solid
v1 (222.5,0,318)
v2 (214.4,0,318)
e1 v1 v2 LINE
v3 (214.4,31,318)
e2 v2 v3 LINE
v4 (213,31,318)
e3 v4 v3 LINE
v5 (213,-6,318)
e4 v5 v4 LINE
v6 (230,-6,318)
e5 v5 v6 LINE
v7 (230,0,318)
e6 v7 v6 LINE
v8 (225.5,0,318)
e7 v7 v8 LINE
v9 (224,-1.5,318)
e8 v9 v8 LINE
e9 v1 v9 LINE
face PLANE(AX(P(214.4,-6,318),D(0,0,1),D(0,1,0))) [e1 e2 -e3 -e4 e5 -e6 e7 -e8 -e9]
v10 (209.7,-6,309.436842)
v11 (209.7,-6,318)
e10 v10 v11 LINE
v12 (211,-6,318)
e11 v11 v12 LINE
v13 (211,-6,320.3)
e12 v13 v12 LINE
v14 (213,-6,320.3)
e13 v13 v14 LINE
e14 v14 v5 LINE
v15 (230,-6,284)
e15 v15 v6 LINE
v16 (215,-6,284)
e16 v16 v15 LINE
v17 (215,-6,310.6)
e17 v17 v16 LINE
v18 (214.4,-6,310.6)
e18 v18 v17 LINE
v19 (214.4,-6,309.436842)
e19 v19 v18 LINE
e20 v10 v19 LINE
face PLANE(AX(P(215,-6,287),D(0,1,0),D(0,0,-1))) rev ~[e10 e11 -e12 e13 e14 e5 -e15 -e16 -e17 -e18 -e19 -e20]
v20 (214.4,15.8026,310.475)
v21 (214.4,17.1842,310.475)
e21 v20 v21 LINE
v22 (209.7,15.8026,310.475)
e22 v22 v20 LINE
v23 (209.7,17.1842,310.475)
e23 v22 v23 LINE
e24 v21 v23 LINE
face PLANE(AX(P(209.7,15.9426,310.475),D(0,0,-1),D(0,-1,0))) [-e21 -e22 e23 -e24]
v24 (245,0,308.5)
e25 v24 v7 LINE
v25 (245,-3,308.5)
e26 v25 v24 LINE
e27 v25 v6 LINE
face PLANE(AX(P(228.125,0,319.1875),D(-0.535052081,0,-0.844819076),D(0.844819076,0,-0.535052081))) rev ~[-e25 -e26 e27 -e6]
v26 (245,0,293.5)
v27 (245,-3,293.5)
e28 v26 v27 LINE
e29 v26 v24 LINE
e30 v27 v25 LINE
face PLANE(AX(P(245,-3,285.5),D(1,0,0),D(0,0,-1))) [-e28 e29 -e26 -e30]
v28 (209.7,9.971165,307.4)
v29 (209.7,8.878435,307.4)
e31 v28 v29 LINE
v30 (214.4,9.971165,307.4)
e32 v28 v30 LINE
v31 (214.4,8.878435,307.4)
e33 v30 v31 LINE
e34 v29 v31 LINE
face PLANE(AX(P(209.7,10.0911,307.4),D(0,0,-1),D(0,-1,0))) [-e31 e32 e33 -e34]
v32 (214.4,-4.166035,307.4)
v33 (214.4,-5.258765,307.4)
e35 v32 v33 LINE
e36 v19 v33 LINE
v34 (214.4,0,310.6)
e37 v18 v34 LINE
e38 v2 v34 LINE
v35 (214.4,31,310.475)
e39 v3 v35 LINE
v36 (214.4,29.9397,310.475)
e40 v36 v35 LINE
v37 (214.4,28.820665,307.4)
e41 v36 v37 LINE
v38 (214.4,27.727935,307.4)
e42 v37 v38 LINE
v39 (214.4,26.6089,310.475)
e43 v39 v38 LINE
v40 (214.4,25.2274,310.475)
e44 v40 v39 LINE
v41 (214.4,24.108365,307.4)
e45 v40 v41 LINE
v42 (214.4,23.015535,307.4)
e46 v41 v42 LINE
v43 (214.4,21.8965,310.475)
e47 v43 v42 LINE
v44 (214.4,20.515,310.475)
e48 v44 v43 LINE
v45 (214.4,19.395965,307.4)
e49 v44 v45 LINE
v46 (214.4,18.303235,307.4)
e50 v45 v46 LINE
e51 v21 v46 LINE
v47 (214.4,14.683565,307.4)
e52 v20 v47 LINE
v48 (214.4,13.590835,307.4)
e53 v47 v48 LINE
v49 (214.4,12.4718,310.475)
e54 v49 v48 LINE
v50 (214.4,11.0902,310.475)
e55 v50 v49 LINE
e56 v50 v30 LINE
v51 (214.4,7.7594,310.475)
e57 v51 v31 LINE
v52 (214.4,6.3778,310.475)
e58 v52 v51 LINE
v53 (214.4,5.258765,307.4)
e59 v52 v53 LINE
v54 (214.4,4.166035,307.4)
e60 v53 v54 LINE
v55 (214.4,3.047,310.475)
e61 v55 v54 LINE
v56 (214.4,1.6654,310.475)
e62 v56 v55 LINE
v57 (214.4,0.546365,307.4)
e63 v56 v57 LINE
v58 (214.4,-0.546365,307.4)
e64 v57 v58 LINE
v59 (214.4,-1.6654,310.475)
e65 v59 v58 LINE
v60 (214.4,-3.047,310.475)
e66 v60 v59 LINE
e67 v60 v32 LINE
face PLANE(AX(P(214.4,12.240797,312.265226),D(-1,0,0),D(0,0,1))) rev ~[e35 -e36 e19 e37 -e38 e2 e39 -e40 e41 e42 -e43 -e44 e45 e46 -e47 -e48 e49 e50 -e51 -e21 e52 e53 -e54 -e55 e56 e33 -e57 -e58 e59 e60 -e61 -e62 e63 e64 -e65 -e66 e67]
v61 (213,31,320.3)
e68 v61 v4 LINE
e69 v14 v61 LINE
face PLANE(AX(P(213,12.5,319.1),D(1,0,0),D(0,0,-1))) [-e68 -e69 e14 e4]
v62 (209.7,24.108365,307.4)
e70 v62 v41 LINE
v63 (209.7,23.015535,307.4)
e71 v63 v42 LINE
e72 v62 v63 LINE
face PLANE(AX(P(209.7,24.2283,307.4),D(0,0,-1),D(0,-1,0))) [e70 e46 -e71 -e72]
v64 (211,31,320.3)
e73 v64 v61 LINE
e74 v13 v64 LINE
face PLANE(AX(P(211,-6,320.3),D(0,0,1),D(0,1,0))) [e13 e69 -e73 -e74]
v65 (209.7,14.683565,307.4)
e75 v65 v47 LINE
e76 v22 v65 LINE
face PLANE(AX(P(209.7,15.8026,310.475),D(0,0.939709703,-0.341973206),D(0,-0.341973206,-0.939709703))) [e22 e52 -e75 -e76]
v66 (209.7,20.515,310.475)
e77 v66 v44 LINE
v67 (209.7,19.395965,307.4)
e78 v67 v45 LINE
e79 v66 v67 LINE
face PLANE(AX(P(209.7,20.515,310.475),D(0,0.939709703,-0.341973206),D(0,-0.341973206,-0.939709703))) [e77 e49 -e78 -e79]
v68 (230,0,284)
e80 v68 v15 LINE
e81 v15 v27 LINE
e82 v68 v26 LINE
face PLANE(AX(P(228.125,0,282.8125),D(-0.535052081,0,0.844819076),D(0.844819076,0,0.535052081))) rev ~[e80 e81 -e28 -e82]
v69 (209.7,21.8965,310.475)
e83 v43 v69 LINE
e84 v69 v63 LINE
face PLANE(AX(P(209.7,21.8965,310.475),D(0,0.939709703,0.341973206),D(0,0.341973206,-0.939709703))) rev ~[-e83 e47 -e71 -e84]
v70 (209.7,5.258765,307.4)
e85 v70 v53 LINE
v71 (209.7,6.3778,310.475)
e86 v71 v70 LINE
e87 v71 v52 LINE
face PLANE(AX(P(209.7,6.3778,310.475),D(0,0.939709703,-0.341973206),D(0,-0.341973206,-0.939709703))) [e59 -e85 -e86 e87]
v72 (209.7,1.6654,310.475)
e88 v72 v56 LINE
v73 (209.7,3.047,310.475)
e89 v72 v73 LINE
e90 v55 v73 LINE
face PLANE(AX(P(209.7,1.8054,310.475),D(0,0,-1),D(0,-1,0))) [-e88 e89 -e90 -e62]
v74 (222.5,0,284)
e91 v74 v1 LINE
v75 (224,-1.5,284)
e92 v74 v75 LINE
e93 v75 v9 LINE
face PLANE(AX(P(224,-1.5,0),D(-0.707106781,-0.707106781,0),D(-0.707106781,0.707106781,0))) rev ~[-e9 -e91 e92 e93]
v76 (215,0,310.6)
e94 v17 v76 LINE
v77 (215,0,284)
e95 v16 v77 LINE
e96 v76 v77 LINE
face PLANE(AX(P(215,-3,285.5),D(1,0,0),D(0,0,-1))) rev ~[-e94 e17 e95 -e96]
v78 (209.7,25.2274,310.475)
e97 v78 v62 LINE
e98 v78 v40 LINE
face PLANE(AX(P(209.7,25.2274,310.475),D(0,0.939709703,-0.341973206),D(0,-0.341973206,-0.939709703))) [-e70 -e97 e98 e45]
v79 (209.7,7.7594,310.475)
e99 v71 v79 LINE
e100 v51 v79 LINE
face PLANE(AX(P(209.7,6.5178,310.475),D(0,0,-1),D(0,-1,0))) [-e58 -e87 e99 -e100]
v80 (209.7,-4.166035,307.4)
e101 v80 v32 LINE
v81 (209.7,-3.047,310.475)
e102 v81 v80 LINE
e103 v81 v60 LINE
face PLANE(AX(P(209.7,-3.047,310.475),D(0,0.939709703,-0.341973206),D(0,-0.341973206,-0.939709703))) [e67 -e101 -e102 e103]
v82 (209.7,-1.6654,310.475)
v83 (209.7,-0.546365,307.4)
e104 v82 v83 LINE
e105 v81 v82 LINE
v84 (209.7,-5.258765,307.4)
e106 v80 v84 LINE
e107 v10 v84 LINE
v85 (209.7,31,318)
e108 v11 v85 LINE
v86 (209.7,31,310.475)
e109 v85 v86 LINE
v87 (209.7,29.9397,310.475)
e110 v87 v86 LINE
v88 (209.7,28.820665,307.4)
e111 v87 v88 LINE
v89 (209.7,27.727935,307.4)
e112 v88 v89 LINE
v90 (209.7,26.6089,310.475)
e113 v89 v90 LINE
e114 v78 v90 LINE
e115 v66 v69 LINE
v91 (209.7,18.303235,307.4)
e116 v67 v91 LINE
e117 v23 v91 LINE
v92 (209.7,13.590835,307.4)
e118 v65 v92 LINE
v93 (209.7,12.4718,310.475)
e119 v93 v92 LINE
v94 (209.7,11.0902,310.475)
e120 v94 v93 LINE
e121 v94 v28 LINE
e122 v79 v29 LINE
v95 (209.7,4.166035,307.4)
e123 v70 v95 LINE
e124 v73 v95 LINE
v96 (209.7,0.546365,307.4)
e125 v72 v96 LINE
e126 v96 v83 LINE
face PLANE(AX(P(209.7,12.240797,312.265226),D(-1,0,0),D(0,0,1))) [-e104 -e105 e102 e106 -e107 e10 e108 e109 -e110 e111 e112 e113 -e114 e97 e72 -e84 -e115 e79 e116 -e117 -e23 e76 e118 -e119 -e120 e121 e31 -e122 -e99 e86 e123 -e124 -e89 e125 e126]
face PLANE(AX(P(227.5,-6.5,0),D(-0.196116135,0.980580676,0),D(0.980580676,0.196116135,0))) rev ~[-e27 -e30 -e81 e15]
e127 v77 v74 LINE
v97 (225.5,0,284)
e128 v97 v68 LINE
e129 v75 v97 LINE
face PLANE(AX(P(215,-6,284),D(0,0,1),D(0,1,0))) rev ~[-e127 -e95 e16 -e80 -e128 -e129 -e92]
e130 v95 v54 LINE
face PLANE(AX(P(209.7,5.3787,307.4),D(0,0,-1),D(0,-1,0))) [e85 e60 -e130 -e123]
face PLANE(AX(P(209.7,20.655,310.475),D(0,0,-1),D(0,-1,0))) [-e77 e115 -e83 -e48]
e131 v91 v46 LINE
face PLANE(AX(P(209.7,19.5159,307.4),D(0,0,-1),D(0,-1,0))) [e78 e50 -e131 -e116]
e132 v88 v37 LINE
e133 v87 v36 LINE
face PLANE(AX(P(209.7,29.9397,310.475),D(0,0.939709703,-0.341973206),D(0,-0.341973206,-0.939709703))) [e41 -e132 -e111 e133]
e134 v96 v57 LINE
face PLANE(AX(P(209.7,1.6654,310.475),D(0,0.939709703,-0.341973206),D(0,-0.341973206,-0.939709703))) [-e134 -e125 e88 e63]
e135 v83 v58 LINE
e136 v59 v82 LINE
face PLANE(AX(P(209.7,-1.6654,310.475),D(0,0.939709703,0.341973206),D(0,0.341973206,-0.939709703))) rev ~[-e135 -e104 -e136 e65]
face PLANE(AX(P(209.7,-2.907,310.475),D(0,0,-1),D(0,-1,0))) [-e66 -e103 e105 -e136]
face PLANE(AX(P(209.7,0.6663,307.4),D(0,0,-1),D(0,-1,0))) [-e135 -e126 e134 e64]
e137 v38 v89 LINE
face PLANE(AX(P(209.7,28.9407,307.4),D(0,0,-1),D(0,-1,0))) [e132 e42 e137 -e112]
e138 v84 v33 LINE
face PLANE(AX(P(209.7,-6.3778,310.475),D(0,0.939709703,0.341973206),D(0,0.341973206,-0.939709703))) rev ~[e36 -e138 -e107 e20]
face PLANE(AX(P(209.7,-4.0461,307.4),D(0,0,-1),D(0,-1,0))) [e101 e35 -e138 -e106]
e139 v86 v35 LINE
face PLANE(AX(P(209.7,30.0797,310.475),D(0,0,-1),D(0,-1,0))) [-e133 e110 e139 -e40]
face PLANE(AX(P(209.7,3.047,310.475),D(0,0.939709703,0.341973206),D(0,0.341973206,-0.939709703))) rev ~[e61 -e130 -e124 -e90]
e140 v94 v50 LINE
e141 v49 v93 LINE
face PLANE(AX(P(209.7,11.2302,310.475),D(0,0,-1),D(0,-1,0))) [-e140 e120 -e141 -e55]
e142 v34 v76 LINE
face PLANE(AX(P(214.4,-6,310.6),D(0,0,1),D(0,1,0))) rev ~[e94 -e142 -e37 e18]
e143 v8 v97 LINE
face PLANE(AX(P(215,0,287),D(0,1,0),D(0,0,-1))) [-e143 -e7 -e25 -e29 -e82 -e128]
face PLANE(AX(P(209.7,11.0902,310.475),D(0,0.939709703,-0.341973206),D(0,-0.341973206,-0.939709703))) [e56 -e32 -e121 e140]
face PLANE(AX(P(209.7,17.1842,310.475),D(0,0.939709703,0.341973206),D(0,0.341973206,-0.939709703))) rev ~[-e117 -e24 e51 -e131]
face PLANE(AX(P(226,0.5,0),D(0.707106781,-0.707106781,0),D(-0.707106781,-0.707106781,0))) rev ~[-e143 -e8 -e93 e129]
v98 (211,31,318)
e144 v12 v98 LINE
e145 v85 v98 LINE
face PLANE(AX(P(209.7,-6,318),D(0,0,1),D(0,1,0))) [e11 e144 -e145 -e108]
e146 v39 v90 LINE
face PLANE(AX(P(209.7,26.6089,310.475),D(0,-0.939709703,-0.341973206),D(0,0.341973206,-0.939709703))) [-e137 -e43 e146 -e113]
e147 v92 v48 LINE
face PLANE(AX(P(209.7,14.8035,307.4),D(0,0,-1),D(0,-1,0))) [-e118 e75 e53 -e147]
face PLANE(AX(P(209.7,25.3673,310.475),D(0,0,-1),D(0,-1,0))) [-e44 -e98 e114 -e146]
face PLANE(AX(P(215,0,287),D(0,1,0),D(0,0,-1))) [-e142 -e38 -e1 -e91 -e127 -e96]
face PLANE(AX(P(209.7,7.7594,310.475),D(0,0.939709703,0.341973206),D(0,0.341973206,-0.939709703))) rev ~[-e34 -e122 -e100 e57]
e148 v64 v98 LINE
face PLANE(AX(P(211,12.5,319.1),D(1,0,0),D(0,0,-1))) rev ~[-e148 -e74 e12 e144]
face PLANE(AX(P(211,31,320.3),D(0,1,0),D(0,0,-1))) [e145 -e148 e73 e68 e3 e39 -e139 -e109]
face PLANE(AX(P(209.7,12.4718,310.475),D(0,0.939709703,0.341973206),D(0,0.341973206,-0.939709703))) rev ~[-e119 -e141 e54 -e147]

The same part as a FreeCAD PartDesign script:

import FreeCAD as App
import Part
import Sketcher
from FreeCAD import Vector
Q = App.Units.Quantity

doc = App.newDocument("Part")
body = doc.addObject("PartDesign::Body", "Body")

# Sketch on YZ plane
sketch1 = body.newObject("Sketcher::SketchObject", "Sketch")
sketch1.AttachmentSupport = (doc.getObject("YZ_Plane"), [""])
sketch1.MapMode = "FlatFace"
sketch1.AttachmentOffset = App.Placement(Vector(0, 0, 209.7), App.Rotation())
sketch1.addGeometry(Part.LineSegment(Vector(31, 318, 0), Vector(-6, 318, 0)), False)
sketch1.addGeometry(Part.LineSegment(Vector(-6, 318, 0), Vector(-6, 309.1069, 0)), False)
sketch1.addGeometry(Part.LineSegment(Vector(-6, 309.1069, 0), Vector(-5.3787, 307.4, 0)), False)
sketch1.addGeometry(Part.LineSegment(Vector(-5.3787, 307.4, 0), Vector(-4.0461, 307.4, 0)), False)
sketch1.addGeometry(Part.LineSegment(Vector(-4.0461, 307.4, 0), Vector(-2.9268, 310.475, 0)), False)
sketch1.addGeometry(Part.LineSegment(Vector(-2.9268, 310.475, 0), Vector(-1.7855, 310.475, 0)), False)
sketch1.addGeometry(Part.LineSegment(Vector(-1.7855, 310.475, 0), Vector(-0.6663, 307.4, 0)), False)
sketch1.addGeometry(Part.LineSegment(Vector(-0.6663, 307.4, 0), Vector(0.6663, 307.4, 0)), False)
sketch1.addGeometry(Part.LineSegment(Vector(0.6663, 307.4, 0), Vector(1.7855, 310.475, 0)), False)
sketch1.addGeometry(Part.LineSegment(Vector(1.7855, 310.475, 0), Vector(2.9268, 310.475, 0)), False)
sketch1.addGeometry(Part.LineSegment(Vector(2.9268, 310.475, 0), Vector(4.0461, 307.4, 0)), False)
sketch1.addGeometry(Part.LineSegment(Vector(4.0461, 307.4, 0), Vector(5.3787, 307.4, 0)), False)
sketch1.addGeometry(Part.LineSegment(Vector(5.3787, 307.4, 0), Vector(6.4979, 310.475, 0)), False)
sketch1.addGeometry(Part.LineSegment(Vector(6.4979, 310.475, 0), Vector(7.6392, 310.475, 0)), False)
sketch1.addGeometry(Part.LineSegment(Vector(7.6392, 310.475, 0), Vector(8.7584, 307.4, 0)), False)
sketch1.addGeometry(Part.LineSegment(Vector(8.7584, 307.4, 0), Vector(10.0911, 307.4, 0)), False)
sketch1.addGeometry(Part.LineSegment(Vector(10.0911, 307.4, 0), Vector(11.2103, 310.475, 0)), False)
sketch1.addGeometry(Part.LineSegment(Vector(11.2103, 310.475, 0), Vector(12.3516, 310.475, 0)), False)
sketch1.addGeometry(Part.LineSegment(Vector(12.3516, 310.475, 0), Vector(13.4708, 307.4, 0)), False)
sketch1.addGeometry(Part.LineSegment(Vector(13.4708, 307.4, 0), Vector(14.8035, 307.4, 0)), False)
sketch1.addGeometry(Part.LineSegment(Vector(14.8035, 307.4, 0), Vector(15.9227, 310.475, 0)), False)
sketch1.addGeometry(Part.LineSegment(Vector(15.9227, 310.475, 0), Vector(17.064, 310.475, 0)), False)
sketch1.addGeometry(Part.LineSegment(Vector(17.064, 310.475, 0), Vector(18.1832, 307.4, 0)), False)
sketch1.addGeometry(Part.LineSegment(Vector(18.1832, 307.4, 0), Vector(19.5159, 307.4, 0)), False)
sketch1.addGeometry(Part.LineSegment(Vector(19.5159, 307.4, 0), Vector(20.6351, 310.475, 0)), False)
sketch1.addGeometry(Part.LineSegment(Vector(20.6351, 310.475, 0), Vector(21.7764, 310.475, 0)), False)
sketch1.addGeometry(Part.LineSegment(Vector(21.7764, 310.475, 0), Vector(22.8956, 307.4, 0)), False)
sketch1.addGeometry(Part.LineSegment(Vector(22.8956, 307.4, 0), Vector(24.2283, 307.4, 0)), False)
sketch1.addGeometry(Part.LineSegment(Vector(24.2283, 307.4, 0), Vector(25.3475, 310.475, 0)), False)
sketch1.addGeometry(Part.LineSegment(Vector(25.3475, 310.475, 0), Vector(26.4888, 310.475, 0)), False)
sketch1.addGeometry(Part.LineSegment(Vector(26.4888, 310.475, 0), Vector(27.608, 307.4, 0)), False)
sketch1.addGeometry(Part.LineSegment(Vector(27.608, 307.4, 0), Vector(28.9407, 307.4, 0)), False)
sketch1.addGeometry(Part.LineSegment(Vector(28.9407, 307.4, 0), Vector(30.0599, 310.475, 0)), False)
sketch1.addGeometry(Part.LineSegment(Vector(30.0599, 310.475, 0), Vector(31, 310.475, 0)), False)
sketch1.addGeometry(Part.LineSegment(Vector(31, 310.475, 0), Vector(31, 318, 0)), False)
sketch1.addConstraint(Sketcher.Constraint("Coincident", 0, 2, 1, 1))
sketch1.addConstraint(Sketcher.Constraint("Coincident", 1, 2, 2, 1))
sketch1.addConstraint(Sketcher.Constraint("Coincident", 2, 2, 3, 1))
sketch1.addConstraint(Sketcher.Constraint("Coincident", 3, 2, 4, 1))
sketch1.addConstraint(Sketcher.Constraint("Coincident", 4, 2, 5, 1))
sketch1.addConstraint(Sketcher.Constraint("Coincident", 5, 2, 6, 1))
sketch1.addConstraint(Sketcher.Constraint("Coincident", 6, 2, 7, 1))
sketch1.addConstraint(Sketcher.Constraint("Coincident", 7, 2, 8, 1))
sketch1.addConstraint(Sketcher.Constraint("Coincident", 8, 2, 9, 1))
sketch1.addConstraint(Sketcher.Constraint("Coincident", 9, 2, 10, 1))
sketch1.addConstraint(Sketcher.Constraint("Coincident", 10, 2, 11, 1))
sketch1.addConstraint(Sketcher.Constraint("Coincident", 11, 2, 12, 1))
sketch1.addConstraint(Sketcher.Constraint("Coincident", 12, 2, 13, 1))
sketch1.addConstraint(Sketcher.Constraint("Coincident", 13, 2, 14, 1))
sketch1.addConstraint(Sketcher.Constraint("Coincident", 14, 2, 15, 1))
sketch1.addConstraint(Sketcher.Constraint("Coincident", 15, 2, 16, 1))
sketch1.addConstraint(Sketcher.Constraint("Coincident", 16, 2, 17, 1))
sketch1.addConstraint(Sketcher.Constraint("Coincident", 17, 2, 18, 1))
sketch1.addConstraint(Sketcher.Constraint("Coincident", 18, 2, 19, 1))
sketch1.addConstraint(Sketcher.Constraint("Coincident", 19, 2, 20, 1))
sketch1.addConstraint(Sketcher.Constraint("Coincident", 20, 2, 21, 1))
sketch1.addConstraint(Sketcher.Constraint("Coincident", 21, 2, 22, 1))
sketch1.addConstraint(Sketcher.Constraint("Coincident", 22, 2, 23, 1))
sketch1.addConstraint(Sketcher.Constraint("Coincident", 23, 2, 24, 1))
sketch1.addConstraint(Sketcher.Constraint("Coincident", 24, 2, 25, 1))
sketch1.addConstraint(Sketcher.Constraint("Coincident", 25, 2, 26, 1))
sketch1.addConstraint(Sketcher.Constraint("Coincident", 26, 2, 27, 1))
sketch1.addConstraint(Sketcher.Constraint("Coincident", 27, 2, 28, 1))
sketch1.addConstraint(Sketcher.Constraint("Coincident", 28, 2, 29, 1))
sketch1.addConstraint(Sketcher.Constraint("Coincident", 29, 2, 30, 1))
sketch1.addConstraint(Sketcher.Constraint("Coincident", 30, 2, 31, 1))
sketch1.addConstraint(Sketcher.Constraint("Coincident", 31, 2, 32, 1))
sketch1.addConstraint(Sketcher.Constraint("Coincident", 32, 2, 33, 1))
sketch1.addConstraint(Sketcher.Constraint("Coincident", 33, 2, 34, 1))
sketch1.addConstraint(Sketcher.Constraint("Coincident", 34, 2, 0, 1))
sketch1.addConstraint(Sketcher.Constraint("Horizontal", 0))
sketch1.addConstraint(Sketcher.Constraint("Vertical", 1))
sketch1.addConstraint(Sketcher.Constraint("Horizontal", 3))
sketch1.addConstraint(Sketcher.Constraint("Horizontal", 5))
sketch1.addConstraint(Sketcher.Constraint("Horizontal", 7))
sketch1.addConstraint(Sketcher.Constraint("Horizontal", 9))
sketch1.addConstraint(Sketcher.Constraint("Horizontal", 11))
sketch1.addConstraint(Sketcher.Constraint("Horizontal", 13))
sketch1.addConstraint(Sketcher.Constraint("Horizontal", 15))
sketch1.addConstraint(Sketcher.Constraint("Horizontal", 17))
sketch1.addConstraint(Sketcher.Constraint("Horizontal", 19))
sketch1.addConstraint(Sketcher.Constraint("Horizontal", 21))
sketch1.addConstraint(Sketcher.Constraint("Horizontal", 23))
sketch1.addConstraint(Sketcher.Constraint("Horizontal", 25))
sketch1.addConstraint(Sketcher.Constraint("Horizontal", 27))
sketch1.addConstraint(Sketcher.Constraint("Horizontal", 29))
sketch1.addConstraint(Sketcher.Constraint("Horizontal", 31))
sketch1.addConstraint(Sketcher.Constraint("Horizontal", 33))
sketch1.addConstraint(Sketcher.Constraint("Vertical", 34))
sketch1.addConstraint(Sketcher.Constraint("Symmetric", 5, 2, 8, 2, -2))
sketch1.addConstraint(Sketcher.Constraint("Symmetric", 3, 2, 10, 2, -2))
sketch1.addConstraint(Sketcher.Constraint("Parallel", 8, 12))
sketch1.addConstraint(Sketcher.Constraint("Parallel", 6, 14))
sketch1.addConstraint(Sketcher.Constraint("Parallel", 12, 16))
sketch1.addConstraint(Sketcher.Constraint("Parallel", 14, 18))
sketch1.addConstraint(Sketcher.Constraint("Parallel", 16, 20))
sketch1.addConstraint(Sketcher.Constraint("Parallel", 18, 22))
sketch1.addConstraint(Sketcher.Constraint("Parallel", 20, 24))
sketch1.addConstraint(Sketcher.Constraint("Parallel", 22, 26))
sketch1.addConstraint(Sketcher.Constraint("Parallel", 24, 28))
sketch1.addConstraint(Sketcher.Constraint("Parallel", 26, 30))
sketch1.addConstraint(Sketcher.Constraint("Parallel", 28, 32))
sketch1.addConstraint(Sketcher.Constraint("Horizontal", 3, 2, 6, 2))
sketch1.addConstraint(Sketcher.Constraint("Horizontal", 9, 2, 12, 2))
sketch1.addConstraint(Sketcher.Constraint("Horizontal", 11, 2, 14, 2))
sketch1.addConstraint(Sketcher.Constraint("Horizontal", 13, 2, 16, 2))
sketch1.addConstraint(Sketcher.Constraint("Horizontal", 15, 2, 18, 2))
sketch1.addConstraint(Sketcher.Constraint("Horizontal", 17, 2, 20, 2))
sketch1.addConstraint(Sketcher.Constraint("Horizontal", 19, 2, 22, 2))
sketch1.addConstraint(Sketcher.Constraint("Horizontal", 21, 2, 24, 2))
sketch1.addConstraint(Sketcher.Constraint("Horizontal", 23, 2, 26, 2))
sketch1.addConstraint(Sketcher.Constraint("Horizontal", 25, 2, 28, 2))
sketch1.addConstraint(Sketcher.Constraint("Horizontal", 27, 2, 30, 2))
sketch1.addConstraint(Sketcher.Constraint("Horizontal", 29, 2, 32, 2))
sketch1.addConstraint(Sketcher.Constraint("Equal", 3, 7))
sketch1.addConstraint(Sketcher.Constraint("Equal", 5, 9))
sketch1.addConstraint(Sketcher.Constraint("Equal", 7, 11))
sketch1.addConstraint(Sketcher.Constraint("Equal", 9, 13))
sketch1.addConstraint(Sketcher.Constraint("Equal", 13, 17))
sketch1.addConstraint(Sketcher.Constraint("Equal", 15, 19))
sketch1.addConstraint(Sketcher.Constraint("Equal", 17, 21))
sketch1.addConstraint(Sketcher.Constraint("Equal", 19, 23))
sketch1.addConstraint(Sketcher.Constraint("Equal", 21, 25))
sketch1.addConstraint(Sketcher.Constraint("Equal", 23, 27))
sketch1.addConstraint(Sketcher.Constraint("Equal", 25, 29))
sketch1.addConstraint(Sketcher.Constraint("Equal", 27, 31))
sketch1.addConstraint(Sketcher.Constraint("Equal", 6, 8))
sketch1.addConstraint(Sketcher.Constraint("DistanceX", 0, 2, 0, 1, Q("37 mm")))
sketch1.addConstraint(Sketcher.Constraint("DistanceX", 0, 2, -1, 1, Q("6 mm")))
sketch1.addConstraint(Sketcher.Constraint("DistanceY", -1, 1, 0, 2, Q("318 mm")))
sketch1.addConstraint(Sketcher.Constraint("DistanceY", -1, 1, 2, 2, Q("307.4 mm")))
sketch1.addConstraint(Sketcher.Constraint("DistanceY", 34, 1, 34, 2, Q("7.525 mm")))
sketch1.addConstraint(Sketcher.Constraint("DistanceX", 3, 1, 3, 2, Q("1.3326 mm")))
sketch1.addConstraint(Sketcher.Constraint("DistanceX", 5, 1, 5, 2, Q("1.1413 mm")))
sketch1.addConstraint(Sketcher.Constraint("DistanceX", 15, 1, 15, 2, Q("1.3327 mm")))
sketch1.addConstraint(Sketcher.Constraint("DistanceX", 33, 1, 33, 2, Q("0.9401 mm")))
sketch1.addConstraint(Sketcher.Constraint("DistanceY", 1, 2, 1, 1, Q("8.8931 mm")))
sketch1.addConstraint(Sketcher.Constraint("DistanceX", -1, 1, 21, 2, Q("17.064 mm")))
pad1 = body.newObject("PartDesign::Pad", "Pad")
pad1.Profile = sketch1
pad1.Length = 4.7

# Sketch on YZ plane
sketch2 = body.newObject("Sketcher::SketchObject", "Sketch001")
sketch2.AttachmentSupport = (doc.getObject("YZ_Plane"), [""])
sketch2.MapMode = "FlatFace"
sketch2.AttachmentOffset = App.Placement(Vector(0, 0, 211), App.Rotation())
sketch2.addGeometry(Part.LineSegment(Vector(31, 320.3, 0), Vector(-6, 320.3, 0)), False)
sketch2.addGeometry(Part.LineSegment(Vector(-6, 320.3, 0), Vector(-6, 317.9, 0)), False)
sketch2.addGeometry(Part.LineSegment(Vector(-6, 317.9, 0), Vector(31, 317.9, 0)), False)
sketch2.addGeometry(Part.LineSegment(Vector(31, 317.9, 0), Vector(31, 320.3, 0)), False)
sketch2.addConstraint(Sketcher.Constraint("Coincident", 0, 2, 1, 1))
sketch2.addConstraint(Sketcher.Constraint("Coincident", 1, 2, 2, 1))
sketch2.addConstraint(Sketcher.Constraint("Coincident", 2, 2, 3, 1))
sketch2.addConstraint(Sketcher.Constraint("Coincident", 3, 2, 0, 1))
sketch2.addConstraint(Sketcher.Constraint("Horizontal", 0))
sketch2.addConstraint(Sketcher.Constraint("Vertical", 1))
sketch2.addConstraint(Sketcher.Constraint("Horizontal", 2))
sketch2.addConstraint(Sketcher.Constraint("Vertical", 3))
sketch2.addConstraint(Sketcher.Constraint("DistanceX", 0, 2, 0, 1, Q("37 mm")))
sketch2.addConstraint(Sketcher.Constraint("DistanceY", 1, 2, 1, 1, Q("2.4 mm")))
sketch2.addConstraint(Sketcher.Constraint("DistanceX", 0, 2, -1, 1, Q("6 mm")))
sketch2.addConstraint(Sketcher.Constraint("DistanceY", -1, 1, 0, 2, Q("320.3 mm")))
pad2 = body.newObject("PartDesign::Pad", "Pad001")
pad2.Profile = sketch2
pad2.Length = 2

# Sketch on YZ plane
sketch3 = body.newObject("Sketcher::SketchObject", "Sketch002")
sketch3.AttachmentSupport = (doc.getObject("YZ_Plane"), [""])
sketch3.MapMode = "FlatFace"
sketch3.AttachmentOffset = App.Placement(Vector(0, 0, 214.4), App.Rotation())
sketch3.addGeometry(Part.LineSegment(Vector(0, 318, 0), Vector(-6, 318, 0)), False)
sketch3.addGeometry(Part.LineSegment(Vector(-6, 318, 0), Vector(-6, 310.6, 0)), False)
sketch3.addGeometry(Part.LineSegment(Vector(-6, 310.6, 0), Vector(0, 310.6, 0)), False)
sketch3.addGeometry(Part.LineSegment(Vector(0, 310.6, 0), Vector(0, 318, 0)), False)
sketch3.addConstraint(Sketcher.Constraint("Coincident", 0, 2, 1, 1))
sketch3.addConstraint(Sketcher.Constraint("Coincident", 1, 2, 2, 1))
sketch3.addConstraint(Sketcher.Constraint("Coincident", 2, 2, 3, 1))
sketch3.addConstraint(Sketcher.Constraint("Coincident", 3, 2, 0, 1))
sketch3.addConstraint(Sketcher.Constraint("Horizontal", 0))
sketch3.addConstraint(Sketcher.Constraint("Vertical", 1))
sketch3.addConstraint(Sketcher.Constraint("Horizontal", 2))
sketch3.addConstraint(Sketcher.Constraint("Vertical", 3))
sketch3.addConstraint(Sketcher.Constraint("PointOnObject", 2, 2, -2))
sketch3.addConstraint(Sketcher.Constraint("DistanceX", 0, 2, 0, 1, Q("6 mm")))
sketch3.addConstraint(Sketcher.Constraint("DistanceY", 1, 2, 1, 1, Q("7.4 mm")))
sketch3.addConstraint(Sketcher.Constraint("DistanceY", -1, 1, 0, 2, Q("318 mm")))
pad3 = body.newObject("PartDesign::Pad", "Pad002")
pad3.Profile = sketch3
pad3.Length = 0.8

# Sketch on YZ plane
sketch4 = body.newObject("Sketcher::SketchObject", "Sketch003")
sketch4.AttachmentSupport = (doc.getObject("YZ_Plane"), [""])
sketch4.MapMode = "FlatFace"
sketch4.AttachmentOffset = App.Placement(Vector(0, 0, 215), App.Rotation())
sketch4.addGeometry(Part.LineSegment(Vector(0, 318, 0), Vector(-6, 318, 0)), False)
sketch4.addGeometry(Part.LineSegment(Vector(-6, 318, 0), Vector(-6, 287, 0)), False)
sketch4.addGeometry(Part.LineSegment(Vector(-6, 287, 0), Vector(0, 287, 0)), False)
sketch4.addGeometry(Part.LineSegment(Vector(0, 287, 0), Vector(0, 318, 0)), False)
sketch4.addConstraint(Sketcher.Constraint("Coincident", 0, 2, 1, 1))
sketch4.addConstraint(Sketcher.Constraint("Coincident", 1, 2, 2, 1))
sketch4.addConstraint(Sketcher.Constraint("Coincident", 2, 2, 3, 1))
sketch4.addConstraint(Sketcher.Constraint("Coincident", 3, 2, 0, 1))
sketch4.addConstraint(Sketcher.Constraint("Horizontal", 0))
sketch4.addConstraint(Sketcher.Constraint("Vertical", 1))
sketch4.addConstraint(Sketcher.Constraint("Horizontal", 2))
sketch4.addConstraint(Sketcher.Constraint("Vertical", 3))
sketch4.addConstraint(Sketcher.Constraint("PointOnObject", 2, 2, -2))
sketch4.addConstraint(Sketcher.Constraint("DistanceX", 0, 2, 0, 1, Q("6 mm")))
sketch4.addConstraint(Sketcher.Constraint("DistanceY", 1, 2, 1, 1, Q("31 mm")))
sketch4.addConstraint(Sketcher.Constraint("DistanceY", -1, 1, 0, 2, Q("318 mm")))
pad4 = body.newObject("PartDesign::Pad", "Pad003")
pad4.Profile = sketch4
pad4.Length = 30

# Sketch on YZ plane
sketch5 = body.newObject("Sketcher::SketchObject", "Sketch004")
sketch5.AttachmentSupport = (doc.getObject("YZ_Plane"), [""])
sketch5.MapMode = "FlatFace"
sketch5.AttachmentOffset = App.Placement(Vector(0, 0, 209.7), App.Rotation())
sketch5.addGeometry(Part.LineSegment(Vector(-4.1716, 307, 0), Vector(-2.907, 310.475, 0)), False)
sketch5.addGeometry(Part.LineSegment(Vector(-2.907, 310.475, 0), Vector(-3.047, 310.475, 0)), False)
sketch5.addGeometry(Part.LineSegment(Vector(-3.047, 310.475, 0), Vector(-4.3116, 307, 0)), False)
sketch5.addGeometry(Part.LineSegment(Vector(-4.3116, 307, 0), Vector(-4.1716, 307, 0)), False)
sketch5.addGeometry(Part.LineSegment(Vector(-6.5178, 310.475, 0), Vector(-5.2532, 307, 0)), False)
sketch5.addGeometry(Part.LineSegment(Vector(-5.2532, 307, 0), Vector(-5.1132, 307, 0)), False)
sketch5.addGeometry(Part.LineSegment(Vector(-5.1132, 307, 0), Vector(-6.3778, 310.475, 0)), False)
sketch5.addGeometry(Part.LineSegment(Vector(-6.3778, 310.475, 0), Vector(-6.5178, 310.475, 0)), False)
sketch5.addGeometry(Part.LineSegment(Vector(0.5408, 307, 0), Vector(1.8054, 310.475, 0)), False)
sketch5.addGeometry(Part.LineSegment(Vector(1.8054, 310.475, 0), Vector(1.6654, 310.475, 0)), False)
sketch5.addGeometry(Part.LineSegment(Vector(1.6654, 310.475, 0), Vector(0.4008, 307, 0)), False)
sketch5.addGeometry(Part.LineSegment(Vector(0.4008, 307, 0), Vector(0.5408, 307, 0)), False)
sketch5.addGeometry(Part.LineSegment(Vector(-1.8054, 310.475, 0), Vector(-0.5408, 307, 0)), False)
sketch5.addGeometry(Part.LineSegment(Vector(-0.5408, 307, 0), Vector(-0.4008, 307, 0)), False)
sketch5.addGeometry(Part.LineSegment(Vector(-0.4008, 307, 0), Vector(-1.6654, 310.475, 0)), False)
sketch5.addGeometry(Part.LineSegment(Vector(-1.6654, 310.475, 0), Vector(-1.8054, 310.475, 0)), False)
sketch5.addGeometry(Part.LineSegment(Vector(5.2532, 307, 0), Vector(6.5178, 310.475, 0)), False)
sketch5.addGeometry(Part.LineSegment(Vector(6.5178, 310.475, 0), Vector(6.3778, 310.475, 0)), False)
sketch5.addGeometry(Part.LineSegment(Vector(6.3778, 310.475, 0), Vector(5.1132, 307, 0)), False)
sketch5.addGeometry(Part.LineSegment(Vector(5.1132, 307, 0), Vector(5.2532, 307, 0)), False)
sketch5.addGeometry(Part.LineSegment(Vector(2.907, 310.475, 0), Vector(4.1716, 307, 0)), False)
sketch5.addGeometry(Part.LineSegment(Vector(4.1716, 307, 0), Vector(4.3116, 307, 0)), False)
sketch5.addGeometry(Part.LineSegment(Vector(4.3116, 307, 0), Vector(3.047, 310.475, 0)), False)
sketch5.addGeometry(Part.LineSegment(Vector(3.047, 310.475, 0), Vector(2.907, 310.475, 0)), False)
sketch5.addGeometry(Part.LineSegment(Vector(9.9656, 307, 0), Vector(11.2302, 310.475, 0)), False)
sketch5.addGeometry(Part.LineSegment(Vector(11.2302, 310.475, 0), Vector(11.0902, 310.475, 0)), False)
sketch5.addGeometry(Part.LineSegment(Vector(11.0902, 310.475, 0), Vector(9.8256, 307, 0)), False)
sketch5.addGeometry(Part.LineSegment(Vector(9.8256, 307, 0), Vector(9.9656, 307, 0)), False)
sketch5.addGeometry(Part.LineSegment(Vector(7.6194, 310.475, 0), Vector(8.884, 307, 0)), False)
sketch5.addGeometry(Part.LineSegment(Vector(8.884, 307, 0), Vector(9.024, 307, 0)), False)
sketch5.addGeometry(Part.LineSegment(Vector(9.024, 307, 0), Vector(7.7594, 310.475, 0)), False)
sketch5.addGeometry(Part.LineSegment(Vector(7.7594, 310.475, 0), Vector(7.6194, 310.475, 0)), False)
sketch5.addGeometry(Part.LineSegment(Vector(14.678, 307, 0), Vector(15.9426, 310.475, 0)), False)
sketch5.addGeometry(Part.LineSegment(Vector(15.9426, 310.475, 0), Vector(15.8026, 310.475, 0)), False)
sketch5.addGeometry(Part.LineSegment(Vector(15.8026, 310.475, 0), Vector(14.538, 307, 0)), False)
sketch5.addGeometry(Part.LineSegment(Vector(14.538, 307, 0), Vector(14.678, 307, 0)), False)
sketch5.addGeometry(Part.LineSegment(Vector(12.3318, 310.475, 0), Vector(13.5964, 307, 0)), False)
sketch5.addGeometry(Part.LineSegment(Vector(13.5964, 307, 0), Vector(13.7364, 307, 0)), False)
sketch5.addGeometry(Part.LineSegment(Vector(13.7364, 307, 0), Vector(12.4718, 310.475, 0)), False)
sketch5.addGeometry(Part.LineSegment(Vector(12.4718, 310.475, 0), Vector(12.3318, 310.475, 0)), False)
sketch5.addGeometry(Part.LineSegment(Vector(19.3904, 307, 0), Vector(20.655, 310.475, 0)), False)
sketch5.addGeometry(Part.LineSegment(Vector(20.655, 310.475, 0), Vector(20.515, 310.475, 0)), False)
sketch5.addGeometry(Part.LineSegment(Vector(20.515, 310.475, 0), Vector(19.2504, 307, 0)), False)
sketch5.addGeometry(Part.LineSegment(Vector(19.2504, 307, 0), Vector(19.3904, 307, 0)), False)
sketch5.addGeometry(Part.LineSegment(Vector(17.0442, 310.475, 0), Vector(18.3088, 307, 0)), False)
sketch5.addGeometry(Part.LineSegment(Vector(18.3088, 307, 0), Vector(18.4488, 307, 0)), False)
sketch5.addGeometry(Part.LineSegment(Vector(18.4488, 307, 0), Vector(17.1842, 310.475, 0)), False)
sketch5.addGeometry(Part.LineSegment(Vector(17.1842, 310.475, 0), Vector(17.0442, 310.475, 0)), False)
sketch5.addGeometry(Part.LineSegment(Vector(24.1027, 307, 0), Vector(25.3673, 310.475, 0)), False)
sketch5.addGeometry(Part.LineSegment(Vector(25.3673, 310.475, 0), Vector(25.2274, 310.475, 0)), False)
sketch5.addGeometry(Part.LineSegment(Vector(25.2274, 310.475, 0), Vector(23.9628, 307, 0)), False)
sketch5.addGeometry(Part.LineSegment(Vector(23.9628, 307, 0), Vector(24.1027, 307, 0)), False)
sketch5.addGeometry(Part.LineSegment(Vector(21.7565, 310.475, 0), Vector(23.0211, 307, 0)), False)
sketch5.addGeometry(Part.LineSegment(Vector(23.0211, 307, 0), Vector(23.1611, 307, 0)), False)
sketch5.addGeometry(Part.LineSegment(Vector(23.1611, 307, 0), Vector(21.8965, 310.475, 0)), False)
sketch5.addGeometry(Part.LineSegment(Vector(21.8965, 310.475, 0), Vector(21.7565, 310.475, 0)), False)
sketch5.addGeometry(Part.LineSegment(Vector(28.8151, 307, 0), Vector(30.0797, 310.475, 0)), False)
sketch5.addGeometry(Part.LineSegment(Vector(30.0797, 310.475, 0), Vector(29.9397, 310.475, 0)), False)
sketch5.addGeometry(Part.LineSegment(Vector(29.9397, 310.475, 0), Vector(28.6751, 307, 0)), False)
sketch5.addGeometry(Part.LineSegment(Vector(28.6751, 307, 0), Vector(28.8151, 307, 0)), False)
sketch5.addGeometry(Part.LineSegment(Vector(26.4689, 310.475, 0), Vector(27.7335, 307, 0)), False)
sketch5.addGeometry(Part.LineSegment(Vector(27.7335, 307, 0), Vector(27.8735, 307, 0)), False)
sketch5.addGeometry(Part.LineSegment(Vector(27.8735, 307, 0), Vector(26.6089, 310.475, 0)), False)
sketch5.addGeometry(Part.LineSegment(Vector(26.6089, 310.475, 0), Vector(26.4689, 310.475, 0)), False)
sketch5.addConstraint(Sketcher.Constraint("Coincident", 0, 2, 1, 1))
sketch5.addConstraint(Sketcher.Constraint("Coincident", 1, 2, 2, 1))
sketch5.addConstraint(Sketcher.Constraint("Coincident", 2, 2, 3, 1))
sketch5.addConstraint(Sketcher.Constraint("Coincident", 3, 2, 0, 1))
sketch5.addConstraint(Sketcher.Constraint("Coincident", 4, 2, 5, 1))
sketch5.addConstraint(Sketcher.Constraint("Coincident", 5, 2, 6, 1))
sketch5.addConstraint(Sketcher.Constraint("Coincident", 6, 2, 7, 1))
sketch5.addConstraint(Sketcher.Constraint("Coincident", 7, 2, 4, 1))
sketch5.addConstraint(Sketcher.Constraint("Coincident", 8, 2, 9, 1))
sketch5.addConstraint(Sketcher.Constraint("Coincident", 9, 2, 10, 1))
sketch5.addConstraint(Sketcher.Constraint("Coincident", 10, 2, 11, 1))
sketch5.addConstraint(Sketcher.Constraint("Coincident", 11, 2, 8, 1))
sketch5.addConstraint(Sketcher.Constraint("Coincident", 12, 2, 13, 1))
sketch5.addConstraint(Sketcher.Constraint("Coincident", 13, 2, 14, 1))
sketch5.addConstraint(Sketcher.Constraint("Coincident", 14, 2, 15, 1))
sketch5.addConstraint(Sketcher.Constraint("Coincident", 15, 2, 12, 1))
sketch5.addConstraint(Sketcher.Constraint("Coincident", 16, 2, 17, 1))
sketch5.addConstraint(Sketcher.Constraint("Coincident", 17, 2, 18, 1))
sketch5.addConstraint(Sketcher.Constraint("Coincident", 18, 2, 19, 1))
sketch5.addConstraint(Sketcher.Constraint("Coincident", 19, 2, 16, 1))
sketch5.addConstraint(Sketcher.Constraint("Coincident", 20, 2, 21, 1))
sketch5.addConstraint(Sketcher.Constraint("Coincident", 21, 2, 22, 1))
sketch5.addConstraint(Sketcher.Constraint("Coincident", 22, 2, 23, 1))
sketch5.addConstraint(Sketcher.Constraint("Coincident", 23, 2, 20, 1))
sketch5.addConstraint(Sketcher.Constraint("Coincident", 24, 2, 25, 1))
sketch5.addConstraint(Sketcher.Constraint("Coincident", 25, 2, 26, 1))
sketch5.addConstraint(Sketcher.Constraint("Coincident", 26, 2, 27, 1))
sketch5.addConstraint(Sketcher.Constraint("Coincident", 27, 2, 24, 1))
sketch5.addConstraint(Sketcher.Constraint("Coincident", 28, 2, 29, 1))
sketch5.addConstraint(Sketcher.Constraint("Coincident", 29, 2, 30, 1))
sketch5.addConstraint(Sketcher.Constraint("Coincident", 30, 2, 31, 1))
sketch5.addConstraint(Sketcher.Constraint("Coincident", 31, 2, 28, 1))
sketch5.addConstraint(Sketcher.Constraint("Coincident", 32, 2, 33, 1))
sketch5.addConstraint(Sketcher.Constraint("Coincident", 33, 2, 34, 1))
sketch5.addConstraint(Sketcher.Constraint("Coincident", 34, 2, 35, 1))
sketch5.addConstraint(Sketcher.Constraint("Coincident", 35, 2, 32, 1))
sketch5.addConstraint(Sketcher.Constraint("Coincident", 36, 2, 37, 1))
sketch5.addConstraint(Sketcher.Constraint("Coincident", 37, 2, 38, 1))
sketch5.addConstraint(Sketcher.Constraint("Coincident", 38, 2, 39, 1))
sketch5.addConstraint(Sketcher.Constraint("Coincident", 39, 2, 36, 1))
sketch5.addConstraint(Sketcher.Constraint("Coincident", 40, 2, 41, 1))
sketch5.addConstraint(Sketcher.Constraint("Coincident", 41, 2, 42, 1))
sketch5.addConstraint(Sketcher.Constraint("Coincident", 42, 2, 43, 1))
sketch5.addConstraint(Sketcher.Constraint("Coincident", 43, 2, 40, 1))
sketch5.addConstraint(Sketcher.Constraint("Coincident", 44, 2, 45, 1))
sketch5.addConstraint(Sketcher.Constraint("Coincident", 45, 2, 46, 1))
sketch5.addConstraint(Sketcher.Constraint("Coincident", 46, 2, 47, 1))
sketch5.addConstraint(Sketcher.Constraint("Coincident", 47, 2, 44, 1))
sketch5.addConstraint(Sketcher.Constraint("Coincident", 48, 2, 49, 1))
sketch5.addConstraint(Sketcher.Constraint("Coincident", 49, 2, 50, 1))
sketch5.addConstraint(Sketcher.Constraint("Coincident", 50, 2, 51, 1))
sketch5.addConstraint(Sketcher.Constraint("Coincident", 51, 2, 48, 1))
sketch5.addConstraint(Sketcher.Constraint("Coincident", 52, 2, 53, 1))
sketch5.addConstraint(Sketcher.Constraint("Coincident", 53, 2, 54, 1))
sketch5.addConstraint(Sketcher.Constraint("Coincident", 54, 2, 55, 1))
sketch5.addConstraint(Sketcher.Constraint("Coincident", 55, 2, 52, 1))
sketch5.addConstraint(Sketcher.Constraint("Coincident", 56, 2, 57, 1))
sketch5.addConstraint(Sketcher.Constraint("Coincident", 57, 2, 58, 1))
sketch5.addConstraint(Sketcher.Constraint("Coincident", 58, 2, 59, 1))
sketch5.addConstraint(Sketcher.Constraint("Coincident", 59, 2, 56, 1))
sketch5.addConstraint(Sketcher.Constraint("Coincident", 60, 2, 61, 1))
sketch5.addConstraint(Sketcher.Constraint("Coincident", 61, 2, 62, 1))
sketch5.addConstraint(Sketcher.Constraint("Coincident", 62, 2, 63, 1))
sketch5.addConstraint(Sketcher.Constraint("Coincident", 63, 2, 60, 1))
sketch5.addConstraint(Sketcher.Constraint("Horizontal", 1))
sketch5.addConstraint(Sketcher.Constraint("Horizontal", 3))
sketch5.addConstraint(Sketcher.Constraint("Horizontal", 5))
sketch5.addConstraint(Sketcher.Constraint("Horizontal", 7))
sketch5.addConstraint(Sketcher.Constraint("Horizontal", 9))
sketch5.addConstraint(Sketcher.Constraint("Horizontal", 11))
sketch5.addConstraint(Sketcher.Constraint("Horizontal", 13))
sketch5.addConstraint(Sketcher.Constraint("Horizontal", 15))
sketch5.addConstraint(Sketcher.Constraint("Horizontal", 17))
sketch5.addConstraint(Sketcher.Constraint("Horizontal", 19))
sketch5.addConstraint(Sketcher.Constraint("Horizontal", 21))
sketch5.addConstraint(Sketcher.Constraint("Horizontal", 23))
sketch5.addConstraint(Sketcher.Constraint("Horizontal", 25))
sketch5.addConstraint(Sketcher.Constraint("Horizontal", 27))
sketch5.addConstraint(Sketcher.Constraint("Horizontal", 29))
sketch5.addConstraint(Sketcher.Constraint("Horizontal", 31))
sketch5.addConstraint(Sketcher.Constraint("Horizontal", 33))
sketch5.addConstraint(Sketcher.Constraint("Horizontal", 35))
sketch5.addConstraint(Sketcher.Constraint("Horizontal", 37))
sketch5.addConstraint(Sketcher.Constraint("Horizontal", 39))
sketch5.addConstraint(Sketcher.Constraint("Horizontal", 41))
sketch5.addConstraint(Sketcher.Constraint("Horizontal", 43))
sketch5.addConstraint(Sketcher.Constraint("Horizontal", 45))
sketch5.addConstraint(Sketcher.Constraint("Horizontal", 47))
sketch5.addConstraint(Sketcher.Constraint("Horizontal", 49))
sketch5.addConstraint(Sketcher.Constraint("Horizontal", 51))
sketch5.addConstraint(Sketcher.Constraint("Horizontal", 53))
sketch5.addConstraint(Sketcher.Constraint("Horizontal", 55))
sketch5.addConstraint(Sketcher.Constraint("Horizontal", 57))
sketch5.addConstraint(Sketcher.Constraint("Horizontal", 59))
sketch5.addConstraint(Sketcher.Constraint("Horizontal", 61))
sketch5.addConstraint(Sketcher.Constraint("Horizontal", 63))
sketch5.addConstraint(Sketcher.Constraint("Symmetric", 11, 2, 12, 2, -2))
sketch5.addConstraint(Sketcher.Constraint("Symmetric", 9, 2, 14, 2, -2))
sketch5.addConstraint(Sketcher.Constraint("Symmetric", 7, 2, 16, 2, -2))
sketch5.addConstraint(Sketcher.Constraint("Symmetric", 5, 2, 18, 2, -2))
sketch5.addConstraint(Sketcher.Constraint("Symmetric", 3, 2, 20, 2, -2))
sketch5.addConstraint(Sketcher.Constraint("Symmetric", 1, 2, 22, 2, -2))
sketch5.addConstraint(Sketcher.Constraint("Parallel", 0, 2))
sketch5.addConstraint(Sketcher.Constraint("Parallel", 4, 6))
sketch5.addConstraint(Sketcher.Constraint("Parallel", 2, 8))
sketch5.addConstraint(Sketcher.Constraint("Parallel", 8, 10))
sketch5.addConstraint(Sketcher.Constraint("Parallel", 6, 12))
sketch5.addConstraint(Sketcher.Constraint("Parallel", 12, 14))
sketch5.addConstraint(Sketcher.Constraint("Parallel", 10, 16))
sketch5.addConstraint(Sketcher.Constraint("Parallel", 16, 18))
sketch5.addConstraint(Sketcher.Constraint("Parallel", 14, 20))
sketch5.addConstraint(Sketcher.Constraint("Parallel", 20, 22))
sketch5.addConstraint(Sketcher.Constraint("Parallel", 18, 24))
sketch5.addConstraint(Sketcher.Constraint("Parallel", 24, 26))
sketch5.addConstraint(Sketcher.Constraint("Parallel", 22, 28))
sketch5.addConstraint(Sketcher.Constraint("Parallel", 28, 30))
sketch5.addConstraint(Sketcher.Constraint("Parallel", 26, 32))
sketch5.addConstraint(Sketcher.Constraint("Parallel", 32, 34))
sketch5.addConstraint(Sketcher.Constraint("Parallel", 30, 36))
sketch5.addConstraint(Sketcher.Constraint("Parallel", 36, 38))
sketch5.addConstraint(Sketcher.Constraint("Parallel", 34, 40))
sketch5.addConstraint(Sketcher.Constraint("Parallel", 40, 42))
sketch5.addConstraint(Sketcher.Constraint("Parallel", 38, 44))
sketch5.addConstraint(Sketcher.Constraint("Parallel", 44, 46))
sketch5.addConstraint(Sketcher.Constraint("Parallel", 42, 48))
sketch5.addConstraint(Sketcher.Constraint("Parallel", 48, 50))
sketch5.addConstraint(Sketcher.Constraint("Parallel", 46, 52))
sketch5.addConstraint(Sketcher.Constraint("Parallel", 52, 54))
sketch5.addConstraint(Sketcher.Constraint("Parallel", 50, 56))
sketch5.addConstraint(Sketcher.Constraint("Parallel", 56, 58))
sketch5.addConstraint(Sketcher.Constraint("Parallel", 54, 60))
sketch5.addConstraint(Sketcher.Constraint("Parallel", 60, 62))
sketch5.addConstraint(Sketcher.Constraint("Horizontal", 3, 2, 4, 2))
sketch5.addConstraint(Sketcher.Constraint("Horizontal", 1, 2, 6, 2))
sketch5.addConstraint(Sketcher.Constraint("Horizontal", 7, 2, 8, 2))
sketch5.addConstraint(Sketcher.Constraint("Horizontal", 5, 2, 10, 2))
sketch5.addConstraint(Sketcher.Constraint("Horizontal", 23, 2, 24, 2))
sketch5.addConstraint(Sketcher.Constraint("Horizontal", 21, 2, 26, 2))
sketch5.addConstraint(Sketcher.Constraint("Horizontal", 27, 2, 28, 2))
sketch5.addConstraint(Sketcher.Constraint("Horizontal", 25, 2, 30, 2))
sketch5.addConstraint(Sketcher.Constraint("Horizontal", 31, 2, 32, 2))
sketch5.addConstraint(Sketcher.Constraint("Horizontal", 29, 2, 34, 2))
sketch5.addConstraint(Sketcher.Constraint("Horizontal", 35, 2, 36, 2))
sketch5.addConstraint(Sketcher.Constraint("Horizontal", 33, 2, 38, 2))
sketch5.addConstraint(Sketcher.Constraint("Horizontal", 39, 2, 40, 2))
sketch5.addConstraint(Sketcher.Constraint("Horizontal", 37, 2, 42, 2))
sketch5.addConstraint(Sketcher.Constraint("Horizontal", 43, 2, 44, 2))
sketch5.addConstraint(Sketcher.Constraint("Horizontal", 41, 2, 46, 2))
sketch5.addConstraint(Sketcher.Constraint("Horizontal", 47, 2, 48, 2))
sketch5.addConstraint(Sketcher.Constraint("Horizontal", 45, 2, 50, 2))
sketch5.addConstraint(Sketcher.Constraint("Horizontal", 51, 2, 52, 2))
sketch5.addConstraint(Sketcher.Constraint("Horizontal", 49, 2, 54, 2))
sketch5.addConstraint(Sketcher.Constraint("Horizontal", 55, 2, 56, 2))
sketch5.addConstraint(Sketcher.Constraint("Horizontal", 53, 2, 58, 2))
sketch5.addConstraint(Sketcher.Constraint("Horizontal", 59, 2, 60, 2))
sketch5.addConstraint(Sketcher.Constraint("Horizontal", 57, 2, 62, 2))
sketch5.addConstraint(Sketcher.Constraint("Equal", 3, 5))
sketch5.addConstraint(Sketcher.Constraint("Equal", 7, 9))
sketch5.addConstraint(Sketcher.Constraint("Equal", 11, 13))
sketch5.addConstraint(Sketcher.Constraint("Equal", 23, 25))
sketch5.addConstraint(Sketcher.Constraint("Equal", 27, 29))
sketch5.addConstraint(Sketcher.Constraint("Equal", 31, 33))
sketch5.addConstraint(Sketcher.Constraint("Equal", 35, 37))
sketch5.addConstraint(Sketcher.Constraint("Equal", 39, 41))
sketch5.addConstraint(Sketcher.Constraint("Equal", 43, 45))
sketch5.addConstraint(Sketcher.Constraint("Equal", 47, 53))
sketch5.addConstraint(Sketcher.Constraint("Equal", 55, 57))
sketch5.addConstraint(Sketcher.Constraint("Equal", 59, 61))
sketch5.addConstraint(Sketcher.Constraint("DistanceY", -1, 1, 2, 2, Q("307 mm")))
sketch5.addConstraint(Sketcher.Constraint("DistanceX", 1, 2, 1, 1, Q("0.14 mm")))
sketch5.addConstraint(Sketcher.Constraint("DistanceX", 49, 2, 49, 1, Q("0.1399 mm")))
sketch5.addConstraint(Sketcher.Constraint("DistanceX", 0, 2, -1, 1, Q("2.907 mm")))
sketch5.addConstraint(Sketcher.Constraint("DistanceY", -1, 1, 0, 2, Q("310.475 mm")))
sketch5.addConstraint(Sketcher.Constraint("DistanceX", -1, 1, 28, 2, Q("8.884 mm")))
sketch5.addConstraint(Sketcher.Constraint("DistanceX", -1, 1, 34, 2, Q("14.538 mm")))
sketch5.addConstraint(Sketcher.Constraint("DistanceX", -1, 1, 40, 2, Q("20.655 mm")))
sketch5.addConstraint(Sketcher.Constraint("DistanceX", 2, 2, -1, 1, Q("4.3116 mm")))
sketch5.addConstraint(Sketcher.Constraint("DistanceX", 4, 2, -1, 1, Q("5.2532 mm")))
sketch5.addConstraint(Sketcher.Constraint("DistanceX", -1, 1, 8, 2, Q("1.8054 mm")))
sketch5.addConstraint(Sketcher.Constraint("DistanceX", -1, 1, 24, 2, Q("11.2302 mm")))
sketch5.addConstraint(Sketcher.Constraint("DistanceX", -1, 1, 36, 2, Q("13.5964 mm")))
sketch5.addConstraint(Sketcher.Constraint("DistanceX", -1, 1, 44, 2, Q("18.3088 mm")))
sketch5.addConstraint(Sketcher.Constraint("DistanceX", -1, 1, 48, 2, Q("25.3673 mm")))
sketch5.addConstraint(Sketcher.Constraint("DistanceX", -1, 1, 52, 2, Q("23.0211 mm")))
sketch5.addConstraint(Sketcher.Constraint("DistanceX", -1, 1, 56, 2, Q("30.0797 mm")))
sketch5.addConstraint(Sketcher.Constraint("DistanceX", -1, 1, 60, 2, Q("27.7335 mm")))
pocket1 = body.newObject("PartDesign::Pocket", "Pocket")
pocket1.Profile = sketch5
pocket1.Length = 9.4
pocket1.Midplane = True

# Sketch on YZ plane
sketch6 = body.newObject("Sketcher::SketchObject", "Sketch005")
sketch6.AttachmentSupport = (doc.getObject("YZ_Plane"), [""])
sketch6.MapMode = "FlatFace"
sketch6.AttachmentOffset = App.Placement(Vector(0, 0, 215), App.Rotation())
sketch6.addGeometry(Part.LineSegment(Vector(0, 287, 0), Vector(-6, 287, 0)), False)
sketch6.addGeometry(Part.LineSegment(Vector(-6, 287, 0), Vector(-6, 284, 0)), False)
sketch6.addGeometry(Part.LineSegment(Vector(-6, 284, 0), Vector(0, 284, 0)), False)
sketch6.addGeometry(Part.LineSegment(Vector(0, 284, 0), Vector(0, 287, 0)), False)
sketch6.addConstraint(Sketcher.Constraint("Coincident", 0, 2, 1, 1))
sketch6.addConstraint(Sketcher.Constraint("Coincident", 1, 2, 2, 1))
sketch6.addConstraint(Sketcher.Constraint("Coincident", 2, 2, 3, 1))
sketch6.addConstraint(Sketcher.Constraint("Coincident", 3, 2, 0, 1))
sketch6.addConstraint(Sketcher.Constraint("Horizontal", 0))
sketch6.addConstraint(Sketcher.Constraint("Vertical", 1))
sketch6.addConstraint(Sketcher.Constraint("Horizontal", 2))
sketch6.addConstraint(Sketcher.Constraint("Vertical", 3))
sketch6.addConstraint(Sketcher.Constraint("PointOnObject", 2, 2, -2))
sketch6.addConstraint(Sketcher.Constraint("DistanceX", 0, 2, 0, 1, Q("6 mm")))
sketch6.addConstraint(Sketcher.Constraint("DistanceY", 1, 2, 1, 1, Q("3 mm")))
sketch6.addConstraint(Sketcher.Constraint("DistanceY", -1, 1, 0, 2, Q("287 mm")))
pad5 = body.newObject("PartDesign::Pad", "Pad004")
pad5.Profile = sketch6
pad5.Length = 30

# Sketch on XY plane
sketch7 = body.newObject("Sketcher::SketchObject", "Sketch006")
sketch7.AttachmentSupport = (doc.getObject("XY_Plane"), [""])
sketch7.MapMode = "FlatFace"
sketch7.addGeometry(Part.LineSegment(Vector(246.5, -2.7, 0), Vector(227.5, -6.5, 0)), False)
sketch7.addGeometry(Part.LineSegment(Vector(227.5, -6.5, 0), Vector(246.5, -6.5, 0)), False)
sketch7.addGeometry(Part.LineSegment(Vector(246.5, -6.5, 0), Vector(246.5, -2.7, 0)), False)
sketch7.addConstraint(Sketcher.Constraint("Coincident", 0, 2, 1, 1))
sketch7.addConstraint(Sketcher.Constraint("Coincident", 1, 2, 2, 1))
sketch7.addConstraint(Sketcher.Constraint("Coincident", 2, 2, 0, 1))
sketch7.addConstraint(Sketcher.Constraint("Horizontal", 1))
sketch7.addConstraint(Sketcher.Constraint("Vertical", 2))
sketch7.addConstraint(Sketcher.Constraint("DistanceX", 1, 1, 1, 2, Q("19 mm")))
sketch7.addConstraint(Sketcher.Constraint("DistanceY", 2, 1, 2, 2, Q("3.8 mm")))
sketch7.addConstraint(Sketcher.Constraint("DistanceX", -1, 1, 0, 2, Q("227.5 mm")))
sketch7.addConstraint(Sketcher.Constraint("DistanceY", 0, 2, -1, 1, Q("6.5 mm")))
pocket2 = body.newObject("PartDesign::Pocket", "Pocket001")
pocket2.Profile = sketch7
pocket2.Type = "ThroughAll"
pocket2.Reversed = True

# Sketch on XY plane
sketch8 = body.newObject("Sketcher::SketchObject", "Sketch007")
sketch8.AttachmentSupport = (doc.getObject("XY_Plane"), [""])
sketch8.MapMode = "FlatFace"
sketch8.addGeometry(Part.LineSegment(Vector(226, 0.5, 0), Vector(222, 0.5, 0)), False)
sketch8.addGeometry(Part.LineSegment(Vector(222, 0.5, 0), Vector(224, -1.5, 0)), False)
sketch8.addGeometry(Part.LineSegment(Vector(224, -1.5, 0), Vector(226, 0.5, 0)), False)
sketch8.addConstraint(Sketcher.Constraint("Coincident", 0, 2, 1, 1))
sketch8.addConstraint(Sketcher.Constraint("Coincident", 1, 2, 2, 1))
sketch8.addConstraint(Sketcher.Constraint("Coincident", 2, 2, 0, 1))
sketch8.addConstraint(Sketcher.Constraint("Horizontal", 0))
sketch8.addConstraint(Sketcher.Constraint("Perpendicular", 1, 2))
sketch8.addConstraint(Sketcher.Constraint("Equal", 1, 2))
sketch8.addConstraint(Sketcher.Constraint("DistanceX", 0, 2, 0, 1, Q("4 mm")))
sketch8.addConstraint(Sketcher.Constraint("DistanceX", -1, 1, 0, 2, Q("222 mm")))
sketch8.addConstraint(Sketcher.Constraint("DistanceY", -1, 1, 0, 2, Q("0.5 mm")))
pocket3 = body.newObject("PartDesign::Pocket", "Pocket002")
pocket3.Profile = sketch8
pocket3.Type = "ThroughAll"
pocket3.Reversed = True

# Sketch on XZ plane
sketch9 = body.newObject("Sketcher::SketchObject", "Sketch008")
sketch9.AttachmentSupport = (doc.getObject("XZ_Plane"), [""])
sketch9.MapMode = "FlatFace"
sketch9.addGeometry(Part.LineSegment(Vector(246.5, 307.55, 0), Vector(228.125, 319.1875, 0)), False)
sketch9.addGeometry(Part.LineSegment(Vector(228.125, 319.1875, 0), Vector(246.5, 319.1875, 0)), False)
sketch9.addGeometry(Part.LineSegment(Vector(246.5, 319.1875, 0), Vector(246.5, 307.55, 0)), False)
sketch9.addGeometry(Part.LineSegment(Vector(228.125, 282.8125, 0), Vector(246.5, 294.45, 0)), False)
sketch9.addGeometry(Part.LineSegment(Vector(246.5, 294.45, 0), Vector(246.5, 282.8125, 0)), False)
sketch9.addGeometry(Part.LineSegment(Vector(246.5, 282.8125, 0), Vector(228.125, 282.8125, 0)), False)
sketch9.addConstraint(Sketcher.Constraint("Coincident", 0, 2, 1, 1))
sketch9.addConstraint(Sketcher.Constraint("Coincident", 1, 2, 2, 1))
sketch9.addConstraint(Sketcher.Constraint("Coincident", 2, 2, 0, 1))
sketch9.addConstraint(Sketcher.Constraint("Coincident", 3, 2, 4, 1))
sketch9.addConstraint(Sketcher.Constraint("Coincident", 4, 2, 5, 1))
sketch9.addConstraint(Sketcher.Constraint("Coincident", 5, 2, 3, 1))
sketch9.addConstraint(Sketcher.Constraint("Horizontal", 1))
sketch9.addConstraint(Sketcher.Constraint("Vertical", 2))
sketch9.addConstraint(Sketcher.Constraint("Vertical", 4))
sketch9.addConstraint(Sketcher.Constraint("Horizontal", 5))
sketch9.addConstraint(Sketcher.Constraint("Vertical", 2, 2, 3, 2))
sketch9.addConstraint(Sketcher.Constraint("Vertical", 0, 2, 5, 2))
sketch9.addConstraint(Sketcher.Constraint("Equal", 2, 4))
sketch9.addConstraint(Sketcher.Constraint("DistanceX", -1, 1, 1, 2, Q("246.5 mm")))
sketch9.addConstraint(Sketcher.Constraint("DistanceY", 3, 2, 2, 2, Q("13.1 mm")))
sketch9.addConstraint(Sketcher.Constraint("DistanceX", 1, 1, 1, 2, Q("18.375 mm")))
sketch9.addConstraint(Sketcher.Constraint("DistanceY", -1, 1, 2, 2, Q("307.55 mm")))
sketch9.addConstraint(Sketcher.Constraint("DistanceY", 2, 2, 2, 1, Q("11.6375 mm")))
pocket4 = body.newObject("PartDesign::Pocket", "Pocket003")
pocket4.Profile = sketch9
pocket4.Length = 13
pocket4.Midplane = True

doc.recompute()
